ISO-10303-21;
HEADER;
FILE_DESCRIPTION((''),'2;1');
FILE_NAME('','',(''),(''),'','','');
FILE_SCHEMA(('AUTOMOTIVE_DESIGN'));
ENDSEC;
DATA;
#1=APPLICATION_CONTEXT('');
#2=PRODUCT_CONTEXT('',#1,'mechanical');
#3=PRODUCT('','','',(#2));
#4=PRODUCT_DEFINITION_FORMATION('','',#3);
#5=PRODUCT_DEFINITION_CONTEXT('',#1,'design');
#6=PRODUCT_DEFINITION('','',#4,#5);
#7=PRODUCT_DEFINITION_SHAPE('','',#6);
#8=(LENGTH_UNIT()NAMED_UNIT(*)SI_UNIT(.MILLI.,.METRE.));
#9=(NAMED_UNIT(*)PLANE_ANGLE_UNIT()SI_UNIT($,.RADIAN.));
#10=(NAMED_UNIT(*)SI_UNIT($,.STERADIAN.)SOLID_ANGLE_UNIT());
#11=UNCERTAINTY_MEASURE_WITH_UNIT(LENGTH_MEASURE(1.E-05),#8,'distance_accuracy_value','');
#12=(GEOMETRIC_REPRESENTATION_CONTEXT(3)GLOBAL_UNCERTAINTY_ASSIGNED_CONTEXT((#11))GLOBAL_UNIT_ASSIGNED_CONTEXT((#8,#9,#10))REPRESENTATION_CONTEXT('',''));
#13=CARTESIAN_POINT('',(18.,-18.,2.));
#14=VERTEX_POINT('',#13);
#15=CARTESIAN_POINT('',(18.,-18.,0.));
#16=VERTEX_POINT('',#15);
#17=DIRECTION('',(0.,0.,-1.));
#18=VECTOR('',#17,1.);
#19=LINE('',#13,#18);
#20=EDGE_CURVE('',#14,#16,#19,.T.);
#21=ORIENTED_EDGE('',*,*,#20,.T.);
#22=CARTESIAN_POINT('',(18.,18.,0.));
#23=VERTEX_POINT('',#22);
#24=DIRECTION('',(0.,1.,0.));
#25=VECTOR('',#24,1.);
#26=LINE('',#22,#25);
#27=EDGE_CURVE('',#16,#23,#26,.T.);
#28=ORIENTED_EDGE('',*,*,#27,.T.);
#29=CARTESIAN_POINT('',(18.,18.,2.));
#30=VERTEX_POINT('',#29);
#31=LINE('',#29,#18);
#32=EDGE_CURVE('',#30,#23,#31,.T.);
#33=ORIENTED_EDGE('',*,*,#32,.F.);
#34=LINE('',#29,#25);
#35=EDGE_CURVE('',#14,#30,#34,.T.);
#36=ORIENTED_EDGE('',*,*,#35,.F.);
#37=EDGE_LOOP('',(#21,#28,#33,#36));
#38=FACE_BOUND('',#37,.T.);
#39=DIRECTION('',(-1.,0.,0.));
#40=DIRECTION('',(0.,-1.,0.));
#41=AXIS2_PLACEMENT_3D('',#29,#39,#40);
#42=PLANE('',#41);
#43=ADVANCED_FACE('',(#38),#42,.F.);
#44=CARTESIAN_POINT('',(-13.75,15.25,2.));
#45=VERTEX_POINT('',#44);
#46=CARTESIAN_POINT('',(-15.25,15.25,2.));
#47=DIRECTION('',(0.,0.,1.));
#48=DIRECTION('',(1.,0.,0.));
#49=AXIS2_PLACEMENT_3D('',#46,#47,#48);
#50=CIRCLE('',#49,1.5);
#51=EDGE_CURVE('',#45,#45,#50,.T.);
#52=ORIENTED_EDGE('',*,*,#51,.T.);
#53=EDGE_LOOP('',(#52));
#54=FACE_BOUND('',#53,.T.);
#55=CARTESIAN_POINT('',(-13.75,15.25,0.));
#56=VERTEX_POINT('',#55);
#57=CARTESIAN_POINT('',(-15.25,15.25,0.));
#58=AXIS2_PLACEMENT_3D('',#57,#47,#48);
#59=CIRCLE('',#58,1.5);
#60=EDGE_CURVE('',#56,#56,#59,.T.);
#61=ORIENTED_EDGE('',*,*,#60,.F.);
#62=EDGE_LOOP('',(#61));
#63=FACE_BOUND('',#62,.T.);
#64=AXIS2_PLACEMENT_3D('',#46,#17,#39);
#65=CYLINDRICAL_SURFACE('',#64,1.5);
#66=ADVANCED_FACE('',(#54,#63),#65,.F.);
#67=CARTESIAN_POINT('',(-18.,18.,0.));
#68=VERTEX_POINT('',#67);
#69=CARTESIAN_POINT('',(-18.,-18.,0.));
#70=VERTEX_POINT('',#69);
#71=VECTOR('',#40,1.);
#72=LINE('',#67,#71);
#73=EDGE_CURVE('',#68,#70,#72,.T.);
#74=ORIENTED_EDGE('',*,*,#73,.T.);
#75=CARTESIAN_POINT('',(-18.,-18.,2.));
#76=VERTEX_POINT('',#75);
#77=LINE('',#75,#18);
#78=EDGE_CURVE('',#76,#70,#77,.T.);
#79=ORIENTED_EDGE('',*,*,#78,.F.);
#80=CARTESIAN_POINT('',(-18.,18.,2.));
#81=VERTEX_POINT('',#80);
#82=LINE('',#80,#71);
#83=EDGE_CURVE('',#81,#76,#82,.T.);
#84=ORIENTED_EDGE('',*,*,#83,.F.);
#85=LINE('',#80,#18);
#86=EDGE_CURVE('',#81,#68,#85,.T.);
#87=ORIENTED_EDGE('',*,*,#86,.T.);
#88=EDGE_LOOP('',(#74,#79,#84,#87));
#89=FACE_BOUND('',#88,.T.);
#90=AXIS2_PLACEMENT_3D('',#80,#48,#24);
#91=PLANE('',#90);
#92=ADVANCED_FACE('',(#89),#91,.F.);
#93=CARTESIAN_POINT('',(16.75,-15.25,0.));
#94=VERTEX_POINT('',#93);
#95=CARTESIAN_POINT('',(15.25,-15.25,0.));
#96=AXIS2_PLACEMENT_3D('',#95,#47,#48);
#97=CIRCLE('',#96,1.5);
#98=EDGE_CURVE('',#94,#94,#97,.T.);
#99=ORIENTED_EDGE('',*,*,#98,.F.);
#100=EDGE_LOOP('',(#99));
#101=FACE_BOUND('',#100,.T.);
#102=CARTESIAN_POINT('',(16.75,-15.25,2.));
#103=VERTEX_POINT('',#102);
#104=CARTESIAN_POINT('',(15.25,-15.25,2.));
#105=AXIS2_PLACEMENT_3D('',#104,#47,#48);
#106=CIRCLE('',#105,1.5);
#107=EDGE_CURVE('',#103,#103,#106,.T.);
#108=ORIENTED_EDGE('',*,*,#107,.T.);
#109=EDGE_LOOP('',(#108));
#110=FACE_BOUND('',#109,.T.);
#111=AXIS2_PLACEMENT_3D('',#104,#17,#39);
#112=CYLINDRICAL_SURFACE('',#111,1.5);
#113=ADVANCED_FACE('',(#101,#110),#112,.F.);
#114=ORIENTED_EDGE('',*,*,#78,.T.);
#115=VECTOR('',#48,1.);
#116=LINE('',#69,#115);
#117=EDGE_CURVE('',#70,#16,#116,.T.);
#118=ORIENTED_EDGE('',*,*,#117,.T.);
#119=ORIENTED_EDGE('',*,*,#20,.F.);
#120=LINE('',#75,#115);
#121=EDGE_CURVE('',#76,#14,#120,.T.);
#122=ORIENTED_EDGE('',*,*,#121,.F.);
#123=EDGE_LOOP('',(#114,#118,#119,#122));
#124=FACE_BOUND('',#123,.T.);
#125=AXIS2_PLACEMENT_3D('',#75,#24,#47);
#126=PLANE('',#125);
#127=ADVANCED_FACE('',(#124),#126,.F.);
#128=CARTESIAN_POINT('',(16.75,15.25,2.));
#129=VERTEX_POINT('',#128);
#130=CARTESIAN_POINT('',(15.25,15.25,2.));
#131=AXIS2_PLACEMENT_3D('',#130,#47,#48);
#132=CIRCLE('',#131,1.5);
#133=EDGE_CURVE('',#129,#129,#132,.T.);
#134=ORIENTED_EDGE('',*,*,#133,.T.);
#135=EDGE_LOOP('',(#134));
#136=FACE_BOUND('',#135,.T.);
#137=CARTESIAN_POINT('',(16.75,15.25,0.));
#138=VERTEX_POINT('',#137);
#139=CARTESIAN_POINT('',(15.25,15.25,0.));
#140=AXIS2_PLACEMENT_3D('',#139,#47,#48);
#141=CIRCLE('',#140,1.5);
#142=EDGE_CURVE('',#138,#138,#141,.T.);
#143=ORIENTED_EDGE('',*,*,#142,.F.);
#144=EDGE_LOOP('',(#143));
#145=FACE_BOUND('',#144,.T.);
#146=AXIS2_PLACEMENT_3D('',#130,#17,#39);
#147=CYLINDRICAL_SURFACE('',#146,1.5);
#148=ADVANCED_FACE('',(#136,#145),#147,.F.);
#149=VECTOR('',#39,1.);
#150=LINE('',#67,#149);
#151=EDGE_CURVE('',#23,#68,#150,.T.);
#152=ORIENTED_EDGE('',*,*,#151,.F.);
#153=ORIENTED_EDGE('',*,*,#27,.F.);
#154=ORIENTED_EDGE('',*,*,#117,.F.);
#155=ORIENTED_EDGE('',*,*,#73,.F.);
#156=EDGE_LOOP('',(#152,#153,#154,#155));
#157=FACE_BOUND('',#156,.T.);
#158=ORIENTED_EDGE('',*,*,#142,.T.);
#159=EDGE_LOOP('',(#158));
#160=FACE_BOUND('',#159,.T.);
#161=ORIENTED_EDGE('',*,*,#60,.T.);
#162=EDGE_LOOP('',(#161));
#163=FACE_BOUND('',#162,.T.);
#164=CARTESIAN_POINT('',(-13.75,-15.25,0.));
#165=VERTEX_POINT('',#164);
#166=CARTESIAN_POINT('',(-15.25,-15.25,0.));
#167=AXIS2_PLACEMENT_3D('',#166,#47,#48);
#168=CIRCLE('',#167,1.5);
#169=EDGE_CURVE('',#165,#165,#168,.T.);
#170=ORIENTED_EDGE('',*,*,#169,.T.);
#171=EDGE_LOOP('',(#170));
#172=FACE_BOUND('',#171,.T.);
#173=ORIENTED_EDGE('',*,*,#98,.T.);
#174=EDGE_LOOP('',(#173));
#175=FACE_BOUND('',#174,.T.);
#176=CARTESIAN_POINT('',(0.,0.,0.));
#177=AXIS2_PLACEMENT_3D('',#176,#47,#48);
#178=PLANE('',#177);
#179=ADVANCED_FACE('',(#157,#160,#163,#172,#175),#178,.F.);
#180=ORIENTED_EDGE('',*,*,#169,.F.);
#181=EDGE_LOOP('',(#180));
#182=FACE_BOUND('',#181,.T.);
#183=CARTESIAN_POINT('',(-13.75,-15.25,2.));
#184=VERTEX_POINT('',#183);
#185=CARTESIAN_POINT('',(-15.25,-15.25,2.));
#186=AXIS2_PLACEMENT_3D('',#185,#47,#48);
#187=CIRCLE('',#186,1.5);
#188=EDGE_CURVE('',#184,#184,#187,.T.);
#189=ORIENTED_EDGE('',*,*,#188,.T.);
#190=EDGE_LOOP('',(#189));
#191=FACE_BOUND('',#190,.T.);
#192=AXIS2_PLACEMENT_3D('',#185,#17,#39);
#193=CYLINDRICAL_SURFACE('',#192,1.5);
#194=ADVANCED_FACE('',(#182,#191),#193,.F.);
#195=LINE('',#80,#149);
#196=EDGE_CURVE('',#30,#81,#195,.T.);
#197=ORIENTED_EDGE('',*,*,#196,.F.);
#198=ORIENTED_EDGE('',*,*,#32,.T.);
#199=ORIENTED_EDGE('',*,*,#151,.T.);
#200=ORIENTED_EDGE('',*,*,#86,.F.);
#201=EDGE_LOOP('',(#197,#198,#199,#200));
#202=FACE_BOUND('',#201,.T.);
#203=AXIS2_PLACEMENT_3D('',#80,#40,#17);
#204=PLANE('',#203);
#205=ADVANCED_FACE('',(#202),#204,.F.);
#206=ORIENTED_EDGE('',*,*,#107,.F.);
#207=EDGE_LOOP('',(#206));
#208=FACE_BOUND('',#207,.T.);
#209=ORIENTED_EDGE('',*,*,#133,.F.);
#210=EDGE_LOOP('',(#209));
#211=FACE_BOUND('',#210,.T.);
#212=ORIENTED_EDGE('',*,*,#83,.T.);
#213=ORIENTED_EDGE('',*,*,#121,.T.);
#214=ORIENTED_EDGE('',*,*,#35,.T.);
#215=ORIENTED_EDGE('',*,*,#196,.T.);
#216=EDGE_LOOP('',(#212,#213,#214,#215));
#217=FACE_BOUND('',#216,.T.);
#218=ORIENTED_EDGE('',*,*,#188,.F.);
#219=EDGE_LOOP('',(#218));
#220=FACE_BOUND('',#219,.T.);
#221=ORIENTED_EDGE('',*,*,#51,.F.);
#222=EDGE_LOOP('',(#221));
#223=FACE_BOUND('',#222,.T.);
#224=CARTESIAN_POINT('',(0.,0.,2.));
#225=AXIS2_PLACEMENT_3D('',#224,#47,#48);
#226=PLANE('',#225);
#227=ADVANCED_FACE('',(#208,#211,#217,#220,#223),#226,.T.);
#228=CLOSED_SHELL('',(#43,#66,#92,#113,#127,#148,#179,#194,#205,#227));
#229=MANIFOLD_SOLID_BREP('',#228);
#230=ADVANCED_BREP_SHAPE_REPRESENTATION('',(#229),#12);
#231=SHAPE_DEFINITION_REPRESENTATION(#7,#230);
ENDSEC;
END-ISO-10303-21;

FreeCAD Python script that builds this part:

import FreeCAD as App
import Part
import Sketcher
from FreeCAD import Vector
Q = App.Units.Quantity

doc = App.newDocument("Part")
body = doc.addObject("PartDesign::Body", "Body")

# Sketch on XY plane
sketch1 = body.newObject("Sketcher::SketchObject", "Sketch")
sketch1.AttachmentSupport = (doc.getObject("XY_Plane"), [""])
sketch1.MapMode = "FlatFace"
sketch1.addGeometry([
    Part.LineSegment(Vector(-18, 18, 0), Vector(-18, -18, 0)),  # 0
    Part.LineSegment(Vector(-18, -18, 0), Vector(18, -18, 0)),  # 1
    Part.LineSegment(Vector(18, -18, 0), Vector(18, 18, 0)),  # 2
    Part.LineSegment(Vector(18, 18, 0), Vector(-18, 18, 0)),  # 3
    Part.Circle(Vector(-15.2, -15.2, 0), Vector(0, 0, 1), 1.5),  # 4
    Part.Circle(Vector(15.2, -15.2, 0), Vector(0, 0, 1), 1.5),  # 5
    Part.Circle(Vector(-15.2, 15.2, 0), Vector(0, 0, 1), 1.5),  # 6
    Part.Circle(Vector(15.2, 15.2, 0), Vector(0, 0, 1), 1.5),  # 7
], False)
sketch1.addConstraint([
    Sketcher.Constraint("Coincident", 0, 2, 1, 1),
    Sketcher.Constraint("Coincident", 1, 2, 2, 1),
    Sketcher.Constraint("Coincident", 2, 2, 3, 1),
    Sketcher.Constraint("Coincident", 3, 2, 0, 1),
    Sketcher.Constraint("Vertical", 0),
    Sketcher.Constraint("Horizontal", 1),
    Sketcher.Constraint("Vertical", 2),
    Sketcher.Constraint("Horizontal", 3),
    Sketcher.Constraint("Equal", 4, 5),
    Sketcher.Constraint("Equal", 5, 6),
    Sketcher.Constraint("Equal", 6, 7),
    Sketcher.Constraint("Symmetric", 5, 3, 6, 3, -1, 1),
    Sketcher.Constraint("Symmetric", 4, 3, 7, 3, -1, 1),
    Sketcher.Constraint("Symmetric", 0, 2, 2, 2, -1, 1),
    Sketcher.Constraint("Symmetric", 4, 3, 5, 3, -2),
    Sketcher.Constraint("Equal", 3, 0),
    Sketcher.Constraint("Diameter", 4, Q("3 mm")),
    Sketcher.Constraint("DistanceX", 1, 1, 1, 2, Q("36 mm")),
    Sketcher.Constraint("DistanceX", 4, 3, 5, 3, Q("30.5 mm")),
    Sketcher.Constraint("DistanceY", 4, 3, 6, 3, Q("30.5 mm")),
])
pad1 = body.newObject("PartDesign::Pad", "Pad")
pad1.Profile = sketch1
pad1.Length = 2

doc.recompute()
